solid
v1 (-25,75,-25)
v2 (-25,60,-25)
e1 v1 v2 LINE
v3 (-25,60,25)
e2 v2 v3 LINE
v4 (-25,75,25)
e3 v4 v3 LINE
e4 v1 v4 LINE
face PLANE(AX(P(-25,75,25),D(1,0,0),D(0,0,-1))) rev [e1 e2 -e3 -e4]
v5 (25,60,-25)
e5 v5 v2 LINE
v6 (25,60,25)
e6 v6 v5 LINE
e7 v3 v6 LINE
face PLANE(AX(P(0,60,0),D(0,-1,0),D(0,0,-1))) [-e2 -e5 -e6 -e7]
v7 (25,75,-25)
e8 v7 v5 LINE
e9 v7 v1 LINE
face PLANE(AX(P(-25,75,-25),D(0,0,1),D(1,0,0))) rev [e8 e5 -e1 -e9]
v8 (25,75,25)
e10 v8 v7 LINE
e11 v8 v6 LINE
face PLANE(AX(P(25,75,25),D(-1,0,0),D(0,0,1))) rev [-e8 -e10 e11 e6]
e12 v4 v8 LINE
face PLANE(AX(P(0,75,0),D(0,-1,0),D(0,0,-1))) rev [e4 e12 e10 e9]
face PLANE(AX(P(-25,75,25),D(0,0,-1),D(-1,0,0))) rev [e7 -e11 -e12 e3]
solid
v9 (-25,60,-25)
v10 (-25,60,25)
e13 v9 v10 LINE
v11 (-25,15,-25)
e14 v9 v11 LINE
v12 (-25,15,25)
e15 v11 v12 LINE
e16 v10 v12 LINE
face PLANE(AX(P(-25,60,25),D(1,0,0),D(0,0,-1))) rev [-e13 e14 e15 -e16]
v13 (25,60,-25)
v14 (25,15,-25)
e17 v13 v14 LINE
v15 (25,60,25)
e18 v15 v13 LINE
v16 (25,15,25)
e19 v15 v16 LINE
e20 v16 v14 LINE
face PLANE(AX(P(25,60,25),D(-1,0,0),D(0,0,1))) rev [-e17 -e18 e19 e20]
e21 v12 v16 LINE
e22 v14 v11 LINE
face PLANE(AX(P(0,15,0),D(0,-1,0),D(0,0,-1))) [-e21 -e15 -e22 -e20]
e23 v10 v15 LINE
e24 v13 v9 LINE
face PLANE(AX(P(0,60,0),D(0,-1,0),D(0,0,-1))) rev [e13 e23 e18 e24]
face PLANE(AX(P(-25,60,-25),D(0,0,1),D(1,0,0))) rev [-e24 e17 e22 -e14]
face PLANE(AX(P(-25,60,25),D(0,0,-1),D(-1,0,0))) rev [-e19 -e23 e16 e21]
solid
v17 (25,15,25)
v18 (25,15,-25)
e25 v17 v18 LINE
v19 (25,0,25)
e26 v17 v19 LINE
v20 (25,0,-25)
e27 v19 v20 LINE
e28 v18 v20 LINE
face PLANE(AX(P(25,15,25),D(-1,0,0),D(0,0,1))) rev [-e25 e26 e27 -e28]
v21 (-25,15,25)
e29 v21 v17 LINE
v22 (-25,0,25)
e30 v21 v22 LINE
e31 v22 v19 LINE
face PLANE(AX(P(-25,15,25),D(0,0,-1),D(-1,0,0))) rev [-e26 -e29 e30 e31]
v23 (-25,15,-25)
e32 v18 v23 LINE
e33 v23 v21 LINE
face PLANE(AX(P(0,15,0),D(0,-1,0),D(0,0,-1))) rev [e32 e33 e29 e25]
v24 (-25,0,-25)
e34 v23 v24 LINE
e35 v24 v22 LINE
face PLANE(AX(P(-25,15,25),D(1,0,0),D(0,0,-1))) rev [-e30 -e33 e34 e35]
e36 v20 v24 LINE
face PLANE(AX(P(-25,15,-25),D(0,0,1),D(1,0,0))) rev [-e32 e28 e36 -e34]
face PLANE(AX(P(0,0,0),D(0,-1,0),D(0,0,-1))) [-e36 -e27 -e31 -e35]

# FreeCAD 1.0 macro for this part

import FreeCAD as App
import Part
import Sketcher
from FreeCAD import Vector


def add_polygon(sketch, points):
    """Adds a closed chain of lines whose ends are joined by coincident constraints."""
    first, n = sketch.GeometryCount, len(points)
    for a, b in zip(points, points[1:] + points[:1]):
        sketch.addGeometry(Part.LineSegment(App.Vector(*a, 0), App.Vector(*b, 0)), False)
    for i in range(n):
        sketch.addConstraint(Sketcher.Constraint("Coincident", first + i, 2, first + (i + 1) % n, 1))

doc = App.newDocument("Part")
body = doc.addObject("PartDesign::Body", "Body")

sketch1 = body.newObject("Sketcher::SketchObject", "Sketch")
sketch1.AttachmentSupport = (doc.getObject("XZ_Plane"), [""])
sketch1.MapMode = "FlatFace"
add_polygon(sketch1, [(-25, -25), (-25, 25), (25, 25), (25, -25)])
sketch1.addConstraint(Sketcher.Constraint("Vertical", 0))
sketch1.addConstraint(Sketcher.Constraint("Horizontal", 1))
sketch1.addConstraint(Sketcher.Constraint("Vertical", 2))
sketch1.addConstraint(Sketcher.Constraint("Horizontal", 3))
sketch1.addConstraint(Sketcher.Constraint("Symmetric", 0, 2, 2, 2, -1, 1))
sketch1.addConstraint(Sketcher.Constraint("Equal", 3, 0))
sketch1.addConstraint(Sketcher.Constraint("DistanceX", 1, 1, 1, 2, 50.0))
pad1 = body.newObject("PartDesign::Pad", "Pad")
pad1.Profile = sketch1
pad1.Length = 15
pad1.Reversed = True
body2 = doc.addObject("PartDesign::Body", "Body001")

sketch2 = body2.newObject("Sketcher::SketchObject", "Sketch001")
sketch2.AttachmentSupport = (doc.getObject("XZ_Plane001"), [""])
sketch2.MapMode = "FlatFace"
sketch2.AttachmentOffset = App.Placement(Vector(0, 0, -15), App.Rotation())
add_polygon(sketch2, [(-25, -25), (-25, 25), (25, 25), (25, -25)])
sketch2.addConstraint(Sketcher.Constraint("Vertical", 0))
sketch2.addConstraint(Sketcher.Constraint("Horizontal", 1))
sketch2.addConstraint(Sketcher.Constraint("Vertical", 2))
sketch2.addConstraint(Sketcher.Constraint("Horizontal", 3))
sketch2.addConstraint(Sketcher.Constraint("Symmetric", 0, 2, 2, 2, -1, 1))
sketch2.addConstraint(Sketcher.Constraint("Equal", 3, 0))
sketch2.addConstraint(Sketcher.Constraint("DistanceX", 1, 1, 1, 2, 50.0))
pad2 = body2.newObject("PartDesign::Pad", "Pad001")
pad2.Profile = sketch2
pad2.Length = 45
pad2.Reversed = True
body3 = doc.addObject("PartDesign::Body", "Body002")

sketch3 = body3.newObject("Sketcher::SketchObject", "Sketch002")
sketch3.AttachmentSupport = (doc.getObject("XZ_Plane002"), [""])
sketch3.MapMode = "FlatFace"
sketch3.AttachmentOffset = App.Placement(Vector(0, 0, -60), App.Rotation())
add_polygon(sketch3, [(-25, -25), (-25, 25), (25, 25), (25, -25)])
sketch3.addConstraint(Sketcher.Constraint("Vertical", 0))
sketch3.addConstraint(Sketcher.Constraint("Horizontal", 1))
sketch3.addConstraint(Sketcher.Constraint("Vertical", 2))
sketch3.addConstraint(Sketcher.Constraint("Horizontal", 3))
sketch3.addConstraint(Sketcher.Constraint("Symmetric", 0, 2, 2, 2, -1, 1))
sketch3.addConstraint(Sketcher.Constraint("Equal", 3, 0))
sketch3.addConstraint(Sketcher.Constraint("DistanceX", 1, 1, 1, 2, 50.0))
pad3 = body3.newObject("PartDesign::Pad", "Pad002")
pad3.Profile = sketch3
pad3.Length = 15
pad3.Reversed = True

doc.recompute()
